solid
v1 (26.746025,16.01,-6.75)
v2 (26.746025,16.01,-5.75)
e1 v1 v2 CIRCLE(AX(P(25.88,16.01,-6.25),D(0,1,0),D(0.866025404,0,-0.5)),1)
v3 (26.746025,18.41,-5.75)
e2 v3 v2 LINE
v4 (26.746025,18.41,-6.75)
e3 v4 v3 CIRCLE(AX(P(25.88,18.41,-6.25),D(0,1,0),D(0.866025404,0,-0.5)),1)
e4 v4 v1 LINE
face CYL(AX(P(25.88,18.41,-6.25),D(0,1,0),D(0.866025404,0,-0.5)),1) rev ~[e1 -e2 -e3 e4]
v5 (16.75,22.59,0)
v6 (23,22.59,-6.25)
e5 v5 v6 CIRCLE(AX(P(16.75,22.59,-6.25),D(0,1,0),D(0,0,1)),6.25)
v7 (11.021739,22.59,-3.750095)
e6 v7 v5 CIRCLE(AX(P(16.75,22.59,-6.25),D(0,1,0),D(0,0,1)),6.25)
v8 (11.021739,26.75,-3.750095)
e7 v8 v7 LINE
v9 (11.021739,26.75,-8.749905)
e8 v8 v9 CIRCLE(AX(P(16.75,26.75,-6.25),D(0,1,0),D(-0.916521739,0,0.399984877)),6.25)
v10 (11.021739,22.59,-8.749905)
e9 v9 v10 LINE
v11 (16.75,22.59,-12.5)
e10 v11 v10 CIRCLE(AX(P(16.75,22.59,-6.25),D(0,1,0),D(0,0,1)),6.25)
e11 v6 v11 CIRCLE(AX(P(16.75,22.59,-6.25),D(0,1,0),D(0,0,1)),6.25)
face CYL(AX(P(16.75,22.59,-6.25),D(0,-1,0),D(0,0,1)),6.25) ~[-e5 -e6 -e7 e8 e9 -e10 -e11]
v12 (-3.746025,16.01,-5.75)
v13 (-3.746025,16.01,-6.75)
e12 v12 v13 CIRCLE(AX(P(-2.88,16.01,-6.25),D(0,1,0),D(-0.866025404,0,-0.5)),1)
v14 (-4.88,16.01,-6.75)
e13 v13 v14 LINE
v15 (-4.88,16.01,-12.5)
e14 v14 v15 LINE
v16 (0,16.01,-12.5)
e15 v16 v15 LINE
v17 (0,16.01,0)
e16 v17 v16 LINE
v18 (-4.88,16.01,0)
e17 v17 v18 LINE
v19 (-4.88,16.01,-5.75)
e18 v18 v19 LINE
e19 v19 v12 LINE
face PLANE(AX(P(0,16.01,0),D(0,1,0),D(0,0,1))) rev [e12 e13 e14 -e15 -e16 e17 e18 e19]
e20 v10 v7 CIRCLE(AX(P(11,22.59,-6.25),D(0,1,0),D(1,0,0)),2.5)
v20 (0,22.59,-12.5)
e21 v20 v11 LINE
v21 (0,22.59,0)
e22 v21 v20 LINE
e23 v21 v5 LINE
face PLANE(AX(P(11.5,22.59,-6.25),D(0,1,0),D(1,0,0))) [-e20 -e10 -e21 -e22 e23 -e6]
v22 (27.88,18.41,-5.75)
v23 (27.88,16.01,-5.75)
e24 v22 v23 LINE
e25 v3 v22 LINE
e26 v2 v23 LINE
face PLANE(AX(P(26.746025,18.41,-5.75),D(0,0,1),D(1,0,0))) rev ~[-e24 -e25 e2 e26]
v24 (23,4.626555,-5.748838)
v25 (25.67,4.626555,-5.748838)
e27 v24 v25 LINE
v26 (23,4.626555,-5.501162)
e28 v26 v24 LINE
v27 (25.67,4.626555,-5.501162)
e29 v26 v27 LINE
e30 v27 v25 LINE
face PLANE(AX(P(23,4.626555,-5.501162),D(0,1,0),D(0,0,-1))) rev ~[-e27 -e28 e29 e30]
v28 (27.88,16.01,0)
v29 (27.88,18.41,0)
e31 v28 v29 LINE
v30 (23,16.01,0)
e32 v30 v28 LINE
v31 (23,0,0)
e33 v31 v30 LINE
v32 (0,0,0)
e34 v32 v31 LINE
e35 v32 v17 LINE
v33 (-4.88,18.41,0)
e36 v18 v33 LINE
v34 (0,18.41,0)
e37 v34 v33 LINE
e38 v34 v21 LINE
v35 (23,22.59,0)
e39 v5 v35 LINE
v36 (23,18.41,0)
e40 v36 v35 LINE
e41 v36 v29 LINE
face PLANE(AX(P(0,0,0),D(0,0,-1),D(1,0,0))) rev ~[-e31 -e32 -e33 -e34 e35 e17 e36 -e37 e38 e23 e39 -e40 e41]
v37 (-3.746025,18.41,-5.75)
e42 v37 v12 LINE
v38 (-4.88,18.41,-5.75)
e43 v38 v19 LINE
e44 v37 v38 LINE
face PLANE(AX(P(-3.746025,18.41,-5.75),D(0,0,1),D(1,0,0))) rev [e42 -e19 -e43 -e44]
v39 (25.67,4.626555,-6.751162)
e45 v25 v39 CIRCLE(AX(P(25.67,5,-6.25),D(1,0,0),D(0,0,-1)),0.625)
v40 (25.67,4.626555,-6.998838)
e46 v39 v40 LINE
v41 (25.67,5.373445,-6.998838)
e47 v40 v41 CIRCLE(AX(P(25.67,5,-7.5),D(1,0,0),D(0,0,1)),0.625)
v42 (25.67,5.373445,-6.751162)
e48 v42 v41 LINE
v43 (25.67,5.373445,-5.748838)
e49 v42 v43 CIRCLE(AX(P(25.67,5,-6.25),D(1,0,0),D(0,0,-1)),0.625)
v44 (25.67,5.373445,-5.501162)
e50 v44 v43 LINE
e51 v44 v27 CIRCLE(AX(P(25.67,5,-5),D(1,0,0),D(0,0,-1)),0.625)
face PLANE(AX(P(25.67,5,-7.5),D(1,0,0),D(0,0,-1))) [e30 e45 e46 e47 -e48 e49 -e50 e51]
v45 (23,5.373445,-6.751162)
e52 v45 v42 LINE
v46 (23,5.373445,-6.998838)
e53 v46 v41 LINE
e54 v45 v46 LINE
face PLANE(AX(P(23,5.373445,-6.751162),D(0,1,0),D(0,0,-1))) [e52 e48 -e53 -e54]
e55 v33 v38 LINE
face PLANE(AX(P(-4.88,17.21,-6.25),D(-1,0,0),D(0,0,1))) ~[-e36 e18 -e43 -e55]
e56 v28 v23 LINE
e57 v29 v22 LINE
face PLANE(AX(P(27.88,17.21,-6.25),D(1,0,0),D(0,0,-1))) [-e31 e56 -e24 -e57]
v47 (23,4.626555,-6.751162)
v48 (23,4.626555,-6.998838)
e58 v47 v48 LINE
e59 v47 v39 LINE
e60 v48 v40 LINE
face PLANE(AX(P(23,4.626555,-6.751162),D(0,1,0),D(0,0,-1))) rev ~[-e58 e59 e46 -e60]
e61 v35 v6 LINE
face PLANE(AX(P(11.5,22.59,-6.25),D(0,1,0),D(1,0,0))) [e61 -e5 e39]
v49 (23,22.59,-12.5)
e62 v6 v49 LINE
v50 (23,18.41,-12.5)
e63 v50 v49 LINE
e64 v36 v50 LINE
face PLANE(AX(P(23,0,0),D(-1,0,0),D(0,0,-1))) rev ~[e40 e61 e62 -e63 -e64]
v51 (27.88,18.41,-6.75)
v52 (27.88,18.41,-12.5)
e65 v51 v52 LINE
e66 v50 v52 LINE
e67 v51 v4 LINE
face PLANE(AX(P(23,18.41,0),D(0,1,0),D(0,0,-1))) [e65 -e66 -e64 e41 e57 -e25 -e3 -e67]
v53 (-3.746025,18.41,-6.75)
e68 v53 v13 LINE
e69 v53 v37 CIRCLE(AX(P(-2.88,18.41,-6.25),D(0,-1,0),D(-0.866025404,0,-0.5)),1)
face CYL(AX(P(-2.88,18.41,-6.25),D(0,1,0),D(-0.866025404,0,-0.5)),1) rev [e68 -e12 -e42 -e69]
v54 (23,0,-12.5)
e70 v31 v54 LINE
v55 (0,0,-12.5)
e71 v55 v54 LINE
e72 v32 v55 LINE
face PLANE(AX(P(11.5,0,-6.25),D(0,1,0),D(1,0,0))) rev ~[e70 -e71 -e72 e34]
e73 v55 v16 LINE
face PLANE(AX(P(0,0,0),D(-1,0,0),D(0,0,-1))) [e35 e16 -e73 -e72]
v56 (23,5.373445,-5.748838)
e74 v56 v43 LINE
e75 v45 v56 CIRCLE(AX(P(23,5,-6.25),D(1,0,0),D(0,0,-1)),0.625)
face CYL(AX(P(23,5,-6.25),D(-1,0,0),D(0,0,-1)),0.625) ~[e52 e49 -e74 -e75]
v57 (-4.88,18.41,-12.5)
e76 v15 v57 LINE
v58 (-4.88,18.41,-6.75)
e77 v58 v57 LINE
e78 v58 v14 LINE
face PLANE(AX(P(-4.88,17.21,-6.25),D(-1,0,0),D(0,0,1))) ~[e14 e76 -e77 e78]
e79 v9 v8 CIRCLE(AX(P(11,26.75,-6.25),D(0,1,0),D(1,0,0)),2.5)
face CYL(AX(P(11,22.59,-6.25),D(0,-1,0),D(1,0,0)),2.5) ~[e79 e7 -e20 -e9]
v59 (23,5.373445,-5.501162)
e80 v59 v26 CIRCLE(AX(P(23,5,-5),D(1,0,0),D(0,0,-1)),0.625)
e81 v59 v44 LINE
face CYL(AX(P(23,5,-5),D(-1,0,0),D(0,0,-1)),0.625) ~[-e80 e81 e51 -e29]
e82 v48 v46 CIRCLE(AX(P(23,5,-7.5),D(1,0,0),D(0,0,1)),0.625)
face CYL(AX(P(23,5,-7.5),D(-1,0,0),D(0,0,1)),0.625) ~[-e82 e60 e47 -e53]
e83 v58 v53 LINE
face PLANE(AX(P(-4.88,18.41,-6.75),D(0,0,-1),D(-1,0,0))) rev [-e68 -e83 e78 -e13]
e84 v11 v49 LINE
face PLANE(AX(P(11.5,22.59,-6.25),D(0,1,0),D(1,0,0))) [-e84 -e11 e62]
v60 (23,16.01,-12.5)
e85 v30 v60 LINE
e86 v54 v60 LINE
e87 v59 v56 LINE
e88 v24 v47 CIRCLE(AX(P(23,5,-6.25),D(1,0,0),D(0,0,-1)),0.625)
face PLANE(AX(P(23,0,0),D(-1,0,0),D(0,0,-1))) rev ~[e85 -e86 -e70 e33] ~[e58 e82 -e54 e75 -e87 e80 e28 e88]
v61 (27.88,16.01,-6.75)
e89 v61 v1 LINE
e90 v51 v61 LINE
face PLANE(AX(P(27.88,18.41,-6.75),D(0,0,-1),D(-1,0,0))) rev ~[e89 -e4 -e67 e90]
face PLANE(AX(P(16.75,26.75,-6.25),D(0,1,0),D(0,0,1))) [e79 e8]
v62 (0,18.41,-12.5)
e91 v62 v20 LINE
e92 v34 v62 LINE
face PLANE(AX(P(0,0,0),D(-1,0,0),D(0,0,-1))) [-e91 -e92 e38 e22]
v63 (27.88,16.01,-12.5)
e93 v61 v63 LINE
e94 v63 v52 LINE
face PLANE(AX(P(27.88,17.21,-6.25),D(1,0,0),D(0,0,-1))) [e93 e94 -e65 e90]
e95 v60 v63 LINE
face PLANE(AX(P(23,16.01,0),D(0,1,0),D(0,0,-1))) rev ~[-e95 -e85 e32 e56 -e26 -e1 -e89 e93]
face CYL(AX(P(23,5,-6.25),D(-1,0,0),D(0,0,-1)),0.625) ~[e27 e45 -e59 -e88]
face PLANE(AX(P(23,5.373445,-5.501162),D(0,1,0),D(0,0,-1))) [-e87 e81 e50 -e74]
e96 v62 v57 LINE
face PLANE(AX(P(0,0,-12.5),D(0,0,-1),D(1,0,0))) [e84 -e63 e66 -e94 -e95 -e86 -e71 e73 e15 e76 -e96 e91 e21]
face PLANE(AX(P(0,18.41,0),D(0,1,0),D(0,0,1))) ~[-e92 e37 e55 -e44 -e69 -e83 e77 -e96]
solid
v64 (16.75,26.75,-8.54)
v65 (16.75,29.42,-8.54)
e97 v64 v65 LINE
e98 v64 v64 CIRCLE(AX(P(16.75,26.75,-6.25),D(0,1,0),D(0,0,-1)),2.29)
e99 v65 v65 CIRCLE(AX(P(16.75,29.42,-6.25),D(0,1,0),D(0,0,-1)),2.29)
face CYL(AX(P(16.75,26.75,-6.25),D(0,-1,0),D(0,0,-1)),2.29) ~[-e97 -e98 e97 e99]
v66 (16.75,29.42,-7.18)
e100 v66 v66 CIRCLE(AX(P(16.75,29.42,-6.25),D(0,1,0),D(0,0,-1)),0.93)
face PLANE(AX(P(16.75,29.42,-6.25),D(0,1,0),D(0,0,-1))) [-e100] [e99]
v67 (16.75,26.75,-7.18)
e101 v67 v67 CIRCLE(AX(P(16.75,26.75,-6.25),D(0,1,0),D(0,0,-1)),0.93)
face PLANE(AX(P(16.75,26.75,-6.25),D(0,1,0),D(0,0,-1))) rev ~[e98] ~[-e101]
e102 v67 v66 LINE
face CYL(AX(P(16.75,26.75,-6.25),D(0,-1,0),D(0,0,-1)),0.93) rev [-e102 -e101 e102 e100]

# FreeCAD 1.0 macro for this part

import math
import FreeCAD as App
import Part
import Sketcher
Q = App.Units.Quantity


def add_polygon(sketch, points):
    """Adds a closed chain of lines whose ends are joined by coincident constraints."""
    first, n = sketch.GeometryCount, len(points)
    for a, b in zip(points, points[1:] + points[:1]):
        sketch.addGeometry(Part.LineSegment(App.Vector(*a, 0), App.Vector(*b, 0)), False)
    for i in range(n):
        sketch.addConstraint(Sketcher.Constraint("Coincident", first + i, 2, first + (i + 1) % n, 1))

doc = App.newDocument("Part")
body = doc.addObject("PartDesign::Body", "Body")

sketch1 = body.newObject("Sketcher::SketchObject", "Sketch")
sketch1.AttachmentSupport = (doc.getObject("XZ_Plane"), [""])
sketch1.MapMode = "FlatFace"
add_polygon(sketch1, [(0, -12.5), (0, 0), (23, 0), (23, -12.5)])
sketch1.addConstraint([
    Sketcher.Constraint("Vertical", 0),
    Sketcher.Constraint("Horizontal", 1),
    Sketcher.Constraint("Vertical", 2),
    Sketcher.Constraint("Horizontal", 3),
    Sketcher.Constraint("Coincident", 0, 2, -1, 1),
    Sketcher.Constraint("DistanceX", 1, 1, 1, 2, Q("23 mm")),
    Sketcher.Constraint("DistanceY", 0, 1, 0, 2, Q("12.5 mm")),
])
pad1 = body.newObject("PartDesign::Pad", "Pad")
pad1.Profile = sketch1
pad1.Length = 22.59
pad1.Reversed = True

sketch2 = body.newObject("Sketcher::SketchObject", "Sketch001")
sketch2.AttachmentSupport = (doc.getObject("XZ_Plane"), [""])
sketch2.MapMode = "FlatFace"
sketch2.AttachmentOffset = App.Placement(App.Vector(0, 0, -22.59), App.Rotation())
sketch2.addGeometry(Part.Circle(App.Vector(16.75, -6.25, 0), App.Vector(0, 0, 1), 6.25), False)
sketch2.addConstraint([
    Sketcher.Constraint("Diameter", 0, Q("12.5 mm")),
    Sketcher.Constraint("DistanceX", -1, 1, 0, 3, Q("16.75 mm")),
    Sketcher.Constraint("DistanceY", 0, 3, -1, 1, Q("6.25 mm")),
])
pad2 = body.newObject("PartDesign::Pad", "Pad001")
pad2.Profile = sketch2
pad2.Length = 4.16
pad2.Reversed = True

sketch3 = body.newObject("Sketcher::SketchObject", "Sketch002")
sketch3.AttachmentSupport = (doc.getObject("XZ_Plane"), [""])
sketch3.MapMode = "FlatFace"
sketch3.AttachmentOffset = App.Placement(App.Vector(0, 0, -22.59), App.Rotation())
sketch3.addGeometry(Part.Circle(App.Vector(11, -6.25, 0), App.Vector(0, 0, 1), 2.5), False)
sketch3.addConstraint([
    Sketcher.Constraint("Diameter", 0, Q("5 mm")),
    Sketcher.Constraint("DistanceX", -1, 1, 0, 3, Q("11 mm")),
    Sketcher.Constraint("DistanceY", 0, 3, -1, 1, Q("6.25 mm")),
])
pad3 = body.newObject("PartDesign::Pad", "Pad002")
pad3.Profile = sketch3
pad3.Length = 4.16
pad3.Reversed = True

sketch4 = body.newObject("Sketcher::SketchObject", "Sketch003")
sketch4.AttachmentSupport = (doc.getObject("YZ_Plane"), [""])
sketch4.MapMode = "FlatFace"
sketch4.AttachmentOffset = App.Placement(App.Vector(0, 0, 23), App.Rotation())
add_polygon(sketch4, [(18.41, 0), (16.01, 0), (16.01, -12.5), (18.41, -12.5)])
sketch4.addConstraint([
    Sketcher.Constraint("Horizontal", 0),
    Sketcher.Constraint("Vertical", 1),
    Sketcher.Constraint("Horizontal", 2),
    Sketcher.Constraint("Vertical", 3),
    Sketcher.Constraint("PointOnObject", 0, 2, -1),
    Sketcher.Constraint("DistanceX", 0, 2, 0, 1, Q("2.4 mm")),
    Sketcher.Constraint("DistanceY", 1, 2, 1, 1, Q("12.5 mm")),
    Sketcher.Constraint("DistanceX", -1, 1, 0, 2, Q("16.01 mm")),
])
pad4 = body.newObject("PartDesign::Pad", "Pad003")
pad4.Profile = sketch4
pad4.Length = 4.88

sketch5 = body.newObject("Sketcher::SketchObject", "Sketch004")
sketch5.AttachmentSupport = (doc.getObject("XZ_Plane"), [""])
sketch5.MapMode = "FlatFace"
sketch5.AttachmentOffset = App.Placement(App.Vector(0, 0, -18.41), App.Rotation())
sketch5.addGeometry([
    Part.ArcOfCircle(Part.Circle(App.Vector(25.88, -6.25, 0), App.Vector(0, 0, 1), 1), math.radians(30), math.radians(330)),
    Part.LineSegment(App.Vector(26.746025, -5.75, 0), App.Vector(27.88, -5.75, 0)),
    Part.LineSegment(App.Vector(27.88, -5.75, 0), App.Vector(27.88, -6.75, 0)),
    Part.LineSegment(App.Vector(27.88, -6.75, 0), App.Vector(26.746025, -6.75, 0)),
], False)
sketch5.addConstraint([
    Sketcher.Constraint("Coincident", 0, 1, 1, 1),
    Sketcher.Constraint("Coincident", 1, 2, 2, 1),
    Sketcher.Constraint("Coincident", 2, 2, 3, 1),
    Sketcher.Constraint("Coincident", 3, 2, 0, 2),
    Sketcher.Constraint("Horizontal", 1),
    Sketcher.Constraint("Vertical", 2),
    Sketcher.Constraint("Horizontal", 3),
    Sketcher.Constraint("Vertical", 0, 1, 3, 2),
    Sketcher.Constraint("Radius", 0, Q("1 mm")),
    Sketcher.Constraint("DistanceY", 2, 2, 2, 1, Q("1 mm")),
    Sketcher.Constraint("DistanceX", 0, 3, 1, 2, Q("2 mm")),
    Sketcher.Constraint("DistanceX", -1, 1, 0, 3, Q("25.88 mm")),
    Sketcher.Constraint("DistanceY", 0, 3, -1, 1, Q("6.25 mm")),
])
pocket1 = body.newObject("PartDesign::Pocket", "Pocket")
pocket1.Profile = sketch5
pocket1.Type = "ThroughAll"
pocket1.Reversed = True
doc.recompute()

datumplane = body.newObject("PartDesign::Plane", "DatumPlane")
datumplane.AttachmentSupport = (doc.getObject("YZ_Plane"), [""])
datumplane.MapMode = "FlatFace"
datumplane.AttachmentOffset = App.Placement(App.Vector(0, 0, 11.5), App.Rotation())
mirrored = body.newObject("PartDesign::Mirrored", "Mirrored")
mirrored.Originals = [pad4, pocket1]
mirrored.MirrorPlane = (datumplane, [""])
body.Tip = mirrored

sketch6 = body.newObject("Sketcher::SketchObject", "Sketch005")
sketch6.AttachmentSupport = (doc.getObject("YZ_Plane"), [""])
sketch6.MapMode = "FlatFace"
sketch6.AttachmentOffset = App.Placement(App.Vector(0, 0, 23), App.Rotation())
sketch6.addGeometry([
    Part.LineSegment(App.Vector(5.373445, -6.998838, 0), App.Vector(5.373445, -6.751162, 0)),
    Part.ArcOfCircle(Part.Circle(App.Vector(5, -6.25, 0), App.Vector(0, 0, 1), 0.625), math.radians(-53.308059), math.radians(53.308059)),
    Part.LineSegment(App.Vector(5.373445, -5.748838, 0), App.Vector(5.373445, -5.501162, 0)),
    Part.ArcOfCircle(Part.Circle(App.Vector(5, -5, 0), App.Vector(0, 0, 1), 0.625), math.radians(-53.308059), math.radians(233.308059)),
    Part.LineSegment(App.Vector(4.626555, -5.501162, 0), App.Vector(4.626555, -5.748838, 0)),
    Part.ArcOfCircle(Part.Circle(App.Vector(5, -6.25, 0), App.Vector(0, 0, 1), 0.625), math.radians(126.691941), math.radians(233.308059)),
    Part.LineSegment(App.Vector(4.626555, -6.751162, 0), App.Vector(4.626555, -6.998838, 0)),
    Part.ArcOfCircle(Part.Circle(App.Vector(5, -7.5, 0), App.Vector(0, 0, 1), 0.625), math.radians(126.691941), math.radians(413.308059)),
], False)
sketch6.addConstraint([
    Sketcher.Constraint("Coincident", 0, 2, 1, 1),
    Sketcher.Constraint("Coincident", 1, 2, 2, 1),
    Sketcher.Constraint("Coincident", 2, 2, 3, 1),
    Sketcher.Constraint("Coincident", 3, 2, 4, 1),
    Sketcher.Constraint("Coincident", 4, 2, 5, 1),
    Sketcher.Constraint("Coincident", 5, 2, 6, 1),
    Sketcher.Constraint("Coincident", 6, 2, 7, 1),
    Sketcher.Constraint("Coincident", 7, 2, 0, 1),
    Sketcher.Constraint("Vertical", 0),
    Sketcher.Constraint("Vertical", 2),
    Sketcher.Constraint("Vertical", 4),
    Sketcher.Constraint("Vertical", 6),
    Sketcher.Constraint("Coincident", 5, 3, 1, 3),
    Sketcher.Constraint("Equal", 1, 3),
    Sketcher.Constraint("Equal", 3, 5),
    Sketcher.Constraint("Equal", 5, 7),
    Sketcher.Constraint("Horizontal", 2, 2, 3, 2),
    Sketcher.Constraint("Horizontal", 1, 2, 4, 2),
    Sketcher.Constraint("Horizontal", 0, 2, 5, 2),
    Sketcher.Constraint("Horizontal", 6, 2, 7, 2),
    Sketcher.Constraint("Vertical", 0, 2, 1, 2),
    Sketcher.Constraint("Equal", 0, 2),
    Sketcher.Constraint("DistanceX", -1, 1, 1, 3, Q("5 mm")),
    Sketcher.Constraint("DistanceY", 3, 3, -1, 1, Q("5 mm")),
    Sketcher.Constraint("Radius", 1, Q("0.625 mm")),
    Sketcher.Constraint("DistanceY", 7, 3, -1, 1, Q("7.5 mm")),
    Sketcher.Constraint("DistanceY", 0, 1, 0, 2, Q("0.247675 mm")),
])
pad5 = body.newObject("PartDesign::Pad", "Pad004")
pad5.Profile = sketch6
pad5.Length = 2.67
body2 = doc.addObject("PartDesign::Body", "Body001")

sketch7 = body2.newObject("Sketcher::SketchObject", "Sketch006")
sketch7.AttachmentSupport = (doc.getObject("XZ_Plane001"), [""])
sketch7.MapMode = "FlatFace"
sketch7.AttachmentOffset = App.Placement(App.Vector(0, 0, -26.75), App.Rotation())
sketch7.addGeometry([
    Part.Circle(App.Vector(16.75, -6.25, 0), App.Vector(0, 0, 1), 2.29),
    Part.Circle(App.Vector(16.75, -6.25, 0), App.Vector(0, 0, 1), 0.93),
], False)
sketch7.addConstraint([
    Sketcher.Constraint("Coincident", 1, 3, 0, 3),
    Sketcher.Constraint("Diameter", 0, Q("4.58 mm")),
    Sketcher.Constraint("Diameter", 1, Q("1.86 mm")),
    Sketcher.Constraint("DistanceX", -1, 1, 0, 3, Q("16.75 mm")),
    Sketcher.Constraint("DistanceY", 0, 3, -1, 1, Q("6.25 mm")),
])
pad6 = body2.newObject("PartDesign::Pad", "Pad005")
pad6.Profile = sketch7
pad6.Length = 2.67
pad6.Reversed = True

doc.recompute()
